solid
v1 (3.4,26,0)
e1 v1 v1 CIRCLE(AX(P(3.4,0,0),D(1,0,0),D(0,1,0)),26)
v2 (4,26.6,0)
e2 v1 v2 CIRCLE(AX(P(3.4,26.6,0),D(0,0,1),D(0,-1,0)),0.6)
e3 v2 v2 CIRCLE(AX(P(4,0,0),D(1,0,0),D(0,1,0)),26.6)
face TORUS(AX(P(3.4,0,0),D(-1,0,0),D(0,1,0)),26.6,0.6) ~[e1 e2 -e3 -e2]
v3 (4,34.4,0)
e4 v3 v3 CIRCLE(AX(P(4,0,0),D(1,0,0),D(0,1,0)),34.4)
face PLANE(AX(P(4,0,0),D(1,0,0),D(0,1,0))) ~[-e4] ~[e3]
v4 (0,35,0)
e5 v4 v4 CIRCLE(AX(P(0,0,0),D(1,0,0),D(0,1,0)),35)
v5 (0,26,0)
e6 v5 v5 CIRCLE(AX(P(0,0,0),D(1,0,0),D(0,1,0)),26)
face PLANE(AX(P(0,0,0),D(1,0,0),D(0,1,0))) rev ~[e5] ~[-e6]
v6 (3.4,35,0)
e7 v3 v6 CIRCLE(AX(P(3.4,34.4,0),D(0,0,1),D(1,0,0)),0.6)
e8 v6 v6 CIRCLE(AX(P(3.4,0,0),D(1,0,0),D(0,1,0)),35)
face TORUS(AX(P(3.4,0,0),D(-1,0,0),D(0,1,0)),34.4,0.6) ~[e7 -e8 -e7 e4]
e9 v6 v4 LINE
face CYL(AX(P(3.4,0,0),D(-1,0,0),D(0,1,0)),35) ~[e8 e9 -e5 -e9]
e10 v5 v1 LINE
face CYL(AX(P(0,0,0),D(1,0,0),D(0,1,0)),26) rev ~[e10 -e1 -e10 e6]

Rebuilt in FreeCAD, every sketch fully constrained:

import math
import FreeCAD as App
import Part
import Sketcher

V = App.Vector
Q = App.Units.Quantity

doc = App.newDocument("Part")
body = doc.addObject("PartDesign::Body", "Body")

# Sketch on XY plane
sketch1 = body.newObject("Sketcher::SketchObject", "Sketch")
sketch1.AttachmentSupport = (doc.getObject("XY_Plane"), [""])
sketch1.MapMode = "FlatFace"
sketch1.addGeometry(Part.LineSegment(V(0, 35, 0), V(0, 26, 0)), False)
sketch1.addGeometry(Part.LineSegment(V(0, 26, 0), V(3.4, 26, 0)), False)
sketch1.addGeometry(Part.ArcOfCircle(Part.Circle(V(3.4, 26.6, 0), V(0, 0, 1), 0.6), math.radians(-90), math.radians(0)), False)
sketch1.addGeometry(Part.LineSegment(V(4, 26.6, 0), V(4, 34.4, 0)), False)
sketch1.addGeometry(Part.ArcOfCircle(Part.Circle(V(3.4, 34.4, 0), V(0, 0, 1), 0.6), math.radians(0), math.radians(90)), False)
sketch1.addGeometry(Part.LineSegment(V(3.4, 35, 0), V(0, 35, 0)), False)
sketch1.addConstraint(Sketcher.Constraint("Coincident", 0, 2, 1, 1))
sketch1.addConstraint(Sketcher.Constraint("Tangent", 1, 2, 2, 1))
sketch1.addConstraint(Sketcher.Constraint("Tangent", 2, 2, 3, 1))
sketch1.addConstraint(Sketcher.Constraint("Tangent", 3, 2, 4, 1))
sketch1.addConstraint(Sketcher.Constraint("Tangent", 4, 2, 5, 1))
sketch1.addConstraint(Sketcher.Constraint("Coincident", 5, 2, 0, 1))
sketch1.addConstraint(Sketcher.Constraint("Vertical", 0))
sketch1.addConstraint(Sketcher.Constraint("Horizontal", 1))
sketch1.addConstraint(Sketcher.Constraint("Vertical", 3))
sketch1.addConstraint(Sketcher.Constraint("Horizontal", 5))
sketch1.addConstraint(Sketcher.Constraint("Equal", 2, 4))
sketch1.addConstraint(Sketcher.Constraint("PointOnObject", 0, 2, -2))
sketch1.addConstraint(Sketcher.Constraint("Radius", 2, Q("0.6 mm")))
sketch1.addConstraint(Sketcher.Constraint("DistanceY", 0, 2, 0, 1, Q("9 mm")))
sketch1.addConstraint(Sketcher.Constraint("DistanceX", 1, 1, 1, 2, Q("3.4 mm")))
sketch1.addConstraint(Sketcher.Constraint("DistanceY", -1, 1, 0, 2, Q("26 mm")))
revolution = body.newObject("PartDesign::Revolution", "Revolution")
revolution.Profile = sketch1
revolution.ReferenceAxis = (sketch1, ["H_Axis"])
revolution.Angle = 360

doc.recompute()
